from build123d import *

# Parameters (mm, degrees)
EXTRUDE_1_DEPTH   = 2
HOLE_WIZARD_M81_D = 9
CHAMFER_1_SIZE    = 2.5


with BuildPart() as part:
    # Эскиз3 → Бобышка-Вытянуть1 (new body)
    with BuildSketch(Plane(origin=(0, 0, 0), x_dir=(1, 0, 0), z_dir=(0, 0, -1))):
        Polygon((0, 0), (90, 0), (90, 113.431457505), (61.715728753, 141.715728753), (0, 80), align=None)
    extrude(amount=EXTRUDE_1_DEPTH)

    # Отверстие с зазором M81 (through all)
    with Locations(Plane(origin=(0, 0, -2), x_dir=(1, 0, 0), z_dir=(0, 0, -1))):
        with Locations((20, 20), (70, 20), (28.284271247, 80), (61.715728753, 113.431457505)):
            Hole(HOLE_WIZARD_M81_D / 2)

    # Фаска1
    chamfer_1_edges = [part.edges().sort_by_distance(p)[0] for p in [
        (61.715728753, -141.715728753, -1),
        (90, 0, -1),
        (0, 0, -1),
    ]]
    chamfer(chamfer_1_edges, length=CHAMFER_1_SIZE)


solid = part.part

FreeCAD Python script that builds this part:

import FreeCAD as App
import Part
import Sketcher

V = App.Vector
Q = App.Units.Quantity


def edges_at(feature, points):
    """Names of the edges that pass closest to the given points."""
    edges = feature.Shape.Edges
    near = lambda p: min(range(len(edges)), key=lambda i: edges[i].distToShape(Part.Vertex(*p))[0])
    return sorted({f"Edge{near(p) + 1}" for p in points})


def add_polygon(sketch, points):
    """Adds a closed chain of lines whose ends are joined by coincident constraints."""
    first, n = sketch.GeometryCount, len(points)
    for a, b in zip(points, points[1:] + points[:1]):
        sketch.addGeometry(Part.LineSegment(App.Vector(*a, 0), App.Vector(*b, 0)), False)
    for i in range(n):
        sketch.addConstraint(Sketcher.Constraint("Coincident", first + i, 2, first + (i + 1) % n, 1))

doc = App.newDocument("Part")
body = doc.addObject("PartDesign::Body", "Body")

sketch1 = body.newObject("Sketcher::SketchObject", "Sketch")
sketch1.AttachmentSupport = (doc.getObject("XY_Plane"), [""])
sketch1.MapMode = "FlatFace"
add_polygon(sketch1, [(0, 0), (90, 0), (90, -113), (62, -142), (0, -80)])
sketch1.addConstraint([
    Sketcher.Constraint("Horizontal", 0),
    Sketcher.Constraint("Vertical", 1),
    Sketcher.Constraint("Vertical", 4),
    Sketcher.Constraint("Coincident", 4, 2, -1, 1),
    Sketcher.Constraint("Perpendicular", 2, 3),
    Sketcher.Constraint("DistanceX", 0, 1, 0, 2, Q("90 mm")),
    Sketcher.Constraint("DistanceY", 4, 1, 4, 2, Q("80 mm")),
    Sketcher.Constraint("Angle", 2, Q("-135 deg")),
    Sketcher.Constraint("Distance", 2, Q("40 mm")),
])
pad1 = body.newObject("PartDesign::Pad", "Pad")
pad1.Profile = sketch1
pad1.Length = 2
pad1.Reversed = True

sketch2 = body.newObject("Sketcher::SketchObject", "Sketch001")
sketch2.AttachmentSupport = (doc.getObject("XY_Plane"), [""])
sketch2.MapMode = "FlatFace"
sketch2.AttachmentOffset = App.Placement(V(0, 0, -2), App.Rotation())
sketch2.addGeometry([
    Part.Circle(V(20, -20, 0), V(0, 0, 1), 4.5),
    Part.Circle(V(70, -20, 0), V(0, 0, 1), 4.5),
    Part.Circle(V(28.3, -80, 0), V(0, 0, 1), 4.5),
    Part.Circle(V(61.7, -113.4, 0), V(0, 0, 1), 4.5),
], False)
sketch2.addConstraint([
    Sketcher.Constraint("Equal", 0, 1),
    Sketcher.Constraint("Equal", 1, 2),
    Sketcher.Constraint("Equal", 2, 3),
    Sketcher.Constraint("Horizontal", 0, 3, 1, 3),
    Sketcher.Constraint("Diameter", 0, Q("9 mm")),
    Sketcher.Constraint("DistanceX", -1, 1, 0, 3, Q("20 mm")),
    Sketcher.Constraint("DistanceY", 0, 3, -1, 1, Q("20 mm")),
    Sketcher.Constraint("DistanceX", -1, 1, 1, 3, Q("70 mm")),
    Sketcher.Constraint("DistanceY", 2, 3, -1, 1, Q("80 mm")),
    Sketcher.Constraint("DistanceX", -1, 1, 2, 3, Q("28.284271 mm")),
    Sketcher.Constraint("DistanceX", -1, 1, 3, 3, Q("61.715729 mm")),
    Sketcher.Constraint("DistanceY", 3, 3, -1, 1, Q("113.431458 mm")),
])
doc.recompute()
hole = body.newObject("PartDesign::Hole", "Hole")
hole.Profile = sketch2
hole.ThreadType = "None"
hole.Diameter = 9
hole.DepthType = "ThroughAll"
hole.Reversed = True
doc.recompute()

chamfer = body.newObject("PartDesign::Chamfer", "Chamfer")
chamfer.Base = (hole, edges_at(hole, [(61.716, -141.716, -1), (90, 0, -1), (0, 0, -1)]))
chamfer.Size = 2.5

doc.recompute()
